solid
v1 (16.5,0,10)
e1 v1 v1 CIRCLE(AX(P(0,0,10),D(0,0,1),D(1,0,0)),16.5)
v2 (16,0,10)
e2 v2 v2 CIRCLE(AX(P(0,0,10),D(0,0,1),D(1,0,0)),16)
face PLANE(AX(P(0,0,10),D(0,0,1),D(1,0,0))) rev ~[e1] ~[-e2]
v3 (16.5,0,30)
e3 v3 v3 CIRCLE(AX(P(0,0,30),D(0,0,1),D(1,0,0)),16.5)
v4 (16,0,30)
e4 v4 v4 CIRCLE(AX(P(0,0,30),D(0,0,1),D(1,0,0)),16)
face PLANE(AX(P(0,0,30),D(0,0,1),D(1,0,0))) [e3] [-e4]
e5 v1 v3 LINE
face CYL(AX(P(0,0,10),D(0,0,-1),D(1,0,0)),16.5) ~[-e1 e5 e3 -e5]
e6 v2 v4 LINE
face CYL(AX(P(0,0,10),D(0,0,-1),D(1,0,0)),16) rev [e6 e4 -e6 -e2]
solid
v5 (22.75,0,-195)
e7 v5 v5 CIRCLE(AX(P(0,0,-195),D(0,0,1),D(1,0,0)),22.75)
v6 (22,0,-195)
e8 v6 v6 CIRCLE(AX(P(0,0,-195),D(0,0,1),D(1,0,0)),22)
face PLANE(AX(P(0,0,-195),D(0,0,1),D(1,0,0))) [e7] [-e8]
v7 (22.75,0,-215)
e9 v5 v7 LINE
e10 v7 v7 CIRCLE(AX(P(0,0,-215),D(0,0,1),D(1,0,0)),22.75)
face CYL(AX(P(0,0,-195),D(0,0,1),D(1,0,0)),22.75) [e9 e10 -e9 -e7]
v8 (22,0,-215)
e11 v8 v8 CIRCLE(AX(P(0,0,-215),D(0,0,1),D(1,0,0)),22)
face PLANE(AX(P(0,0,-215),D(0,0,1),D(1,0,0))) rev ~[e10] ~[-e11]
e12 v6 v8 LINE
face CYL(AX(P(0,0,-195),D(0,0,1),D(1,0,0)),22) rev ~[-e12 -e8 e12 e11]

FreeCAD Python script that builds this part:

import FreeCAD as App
import Part
import Sketcher
from FreeCAD import Vector

doc = App.newDocument("Part")
body = doc.addObject("PartDesign::Body", "Body")
body.AllowCompound = True

# Sketch on XY plane
sketch1 = body.newObject("Sketcher::SketchObject", "Sketch")
sketch1.AttachmentSupport = (doc.getObject("XY_Plane"), [""])
sketch1.MapMode = "FlatFace"
sketch1.AttachmentOffset = App.Placement(Vector(0, 0, 10), App.Rotation())
sketch1.addGeometry(Part.Circle(Vector(0, 0, 0), Vector(0, 0, 1), 16), False)
sketch1.addGeometry(Part.Circle(Vector(0, 0, 0), Vector(0, 0, 1), 16), False)
sketch1.addConstraint(Sketcher.Constraint("Coincident", 0, 3, -1, 1))
sketch1.addConstraint(Sketcher.Constraint("Coincident", 1, 3, -1, 1))
sketch1.addConstraint(Sketcher.Constraint("Diameter", 0, 33.0))
sketch1.addConstraint(Sketcher.Constraint("Diameter", 1, 32.0))
pad1 = body.newObject("PartDesign::Pad", "Pad")
pad1.Profile = sketch1
pad1.Length = 20

# Sketch on XY plane
sketch2 = body.newObject("Sketcher::SketchObject", "Sketch001")
sketch2.AttachmentSupport = (doc.getObject("XY_Plane"), [""])
sketch2.MapMode = "FlatFace"
sketch2.AttachmentOffset = App.Placement(Vector(0, 0, -195), App.Rotation())
sketch2.addGeometry(Part.Circle(Vector(0, 0, 0), Vector(0, 0, 1), 23), False)
sketch2.addGeometry(Part.Circle(Vector(0, 0, 0), Vector(0, 0, 1), 22), False)
sketch2.addConstraint(Sketcher.Constraint("Coincident", 0, 3, -1, 1))
sketch2.addConstraint(Sketcher.Constraint("Coincident", 1, 3, -1, 1))
sketch2.addConstraint(Sketcher.Constraint("Diameter", 0, 45.5))
sketch2.addConstraint(Sketcher.Constraint("Diameter", 1, 44.0))
pad2 = body.newObject("PartDesign::Pad", "Pad001")
pad2.Profile = sketch2
pad2.Length = 20
pad2.Reversed = True

doc.recompute()
